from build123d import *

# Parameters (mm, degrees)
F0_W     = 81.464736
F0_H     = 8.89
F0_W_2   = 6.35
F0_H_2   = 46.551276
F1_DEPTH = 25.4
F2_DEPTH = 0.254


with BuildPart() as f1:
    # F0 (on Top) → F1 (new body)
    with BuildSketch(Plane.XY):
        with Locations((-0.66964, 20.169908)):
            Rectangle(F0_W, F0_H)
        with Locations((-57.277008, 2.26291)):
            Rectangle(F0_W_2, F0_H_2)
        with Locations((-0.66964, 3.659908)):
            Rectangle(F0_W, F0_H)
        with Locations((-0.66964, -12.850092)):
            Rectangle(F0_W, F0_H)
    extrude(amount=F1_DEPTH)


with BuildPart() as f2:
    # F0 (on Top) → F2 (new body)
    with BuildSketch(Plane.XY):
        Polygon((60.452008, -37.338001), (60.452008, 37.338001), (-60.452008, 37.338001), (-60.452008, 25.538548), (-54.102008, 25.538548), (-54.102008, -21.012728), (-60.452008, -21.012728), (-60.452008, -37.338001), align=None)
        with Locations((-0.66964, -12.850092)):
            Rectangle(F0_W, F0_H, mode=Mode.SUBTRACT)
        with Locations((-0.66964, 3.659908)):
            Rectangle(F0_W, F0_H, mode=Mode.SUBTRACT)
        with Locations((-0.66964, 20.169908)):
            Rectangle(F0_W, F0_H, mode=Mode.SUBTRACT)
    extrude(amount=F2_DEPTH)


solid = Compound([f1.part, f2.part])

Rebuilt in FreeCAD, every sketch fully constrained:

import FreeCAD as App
import Part
import Sketcher
Q = App.Units.Quantity

doc = App.newDocument("Part")
body = doc.addObject("PartDesign::Body", "Body")
body.AllowCompound = True

sketch1 = body.newObject("Sketcher::SketchObject", "Sketch")
sketch1.AttachmentSupport = (doc.getObject("XY_Plane"), [""])
sketch1.MapMode = "FlatFace"
sketch1.addGeometry(Part.LineSegment(App.Vector(-41, 25, 0), App.Vector(-41, 16, 0)), False)
sketch1.addGeometry(Part.LineSegment(App.Vector(-41, 16, 0), App.Vector(40, 16, 0)), False)
sketch1.addGeometry(Part.LineSegment(App.Vector(40, 16, 0), App.Vector(40, 25, 0)), False)
sketch1.addGeometry(Part.LineSegment(App.Vector(40, 25, 0), App.Vector(-41, 25, 0)), False)
sketch1.addGeometry(Part.LineSegment(App.Vector(-60, 26, 0), App.Vector(-60, -21, 0)), False)
sketch1.addGeometry(Part.LineSegment(App.Vector(-60, -21, 0), App.Vector(-54, -21, 0)), False)
sketch1.addGeometry(Part.LineSegment(App.Vector(-54, -21, 0), App.Vector(-54, 26, 0)), False)
sketch1.addGeometry(Part.LineSegment(App.Vector(-54, 26, 0), App.Vector(-60, 26, 0)), False)
sketch1.addGeometry(Part.LineSegment(App.Vector(-41, 8, 0), App.Vector(-41, -1, 0)), False)
sketch1.addGeometry(Part.LineSegment(App.Vector(-41, -1, 0), App.Vector(40, -1, 0)), False)
sketch1.addGeometry(Part.LineSegment(App.Vector(40, -1, 0), App.Vector(40, 8, 0)), False)
sketch1.addGeometry(Part.LineSegment(App.Vector(40, 8, 0), App.Vector(-41, 8, 0)), False)
sketch1.addGeometry(Part.LineSegment(App.Vector(-41, -8, 0), App.Vector(-41, -17, 0)), False)
sketch1.addGeometry(Part.LineSegment(App.Vector(-41, -17, 0), App.Vector(40, -17, 0)), False)
sketch1.addGeometry(Part.LineSegment(App.Vector(40, -17, 0), App.Vector(40, -8, 0)), False)
sketch1.addGeometry(Part.LineSegment(App.Vector(40, -8, 0), App.Vector(-41, -8, 0)), False)
sketch1.addConstraint(Sketcher.Constraint("Coincident", 0, 2, 1, 1))
sketch1.addConstraint(Sketcher.Constraint("Coincident", 1, 2, 2, 1))
sketch1.addConstraint(Sketcher.Constraint("Coincident", 2, 2, 3, 1))
sketch1.addConstraint(Sketcher.Constraint("Coincident", 3, 2, 0, 1))
sketch1.addConstraint(Sketcher.Constraint("Coincident", 4, 2, 5, 1))
sketch1.addConstraint(Sketcher.Constraint("Coincident", 5, 2, 6, 1))
sketch1.addConstraint(Sketcher.Constraint("Coincident", 6, 2, 7, 1))
sketch1.addConstraint(Sketcher.Constraint("Coincident", 7, 2, 4, 1))
sketch1.addConstraint(Sketcher.Constraint("Coincident", 8, 2, 9, 1))
sketch1.addConstraint(Sketcher.Constraint("Coincident", 9, 2, 10, 1))
sketch1.addConstraint(Sketcher.Constraint("Coincident", 10, 2, 11, 1))
sketch1.addConstraint(Sketcher.Constraint("Coincident", 11, 2, 8, 1))
sketch1.addConstraint(Sketcher.Constraint("Coincident", 12, 2, 13, 1))
sketch1.addConstraint(Sketcher.Constraint("Coincident", 13, 2, 14, 1))
sketch1.addConstraint(Sketcher.Constraint("Coincident", 14, 2, 15, 1))
sketch1.addConstraint(Sketcher.Constraint("Coincident", 15, 2, 12, 1))
sketch1.addConstraint(Sketcher.Constraint("Vertical", 0))
sketch1.addConstraint(Sketcher.Constraint("Horizontal", 1))
sketch1.addConstraint(Sketcher.Constraint("Vertical", 2))
sketch1.addConstraint(Sketcher.Constraint("Horizontal", 3))
sketch1.addConstraint(Sketcher.Constraint("Vertical", 4))
sketch1.addConstraint(Sketcher.Constraint("Horizontal", 5))
sketch1.addConstraint(Sketcher.Constraint("Vertical", 6))
sketch1.addConstraint(Sketcher.Constraint("Horizontal", 7))
sketch1.addConstraint(Sketcher.Constraint("Vertical", 8))
sketch1.addConstraint(Sketcher.Constraint("Horizontal", 9))
sketch1.addConstraint(Sketcher.Constraint("Vertical", 10))
sketch1.addConstraint(Sketcher.Constraint("Horizontal", 11))
sketch1.addConstraint(Sketcher.Constraint("Vertical", 12))
sketch1.addConstraint(Sketcher.Constraint("Horizontal", 13))
sketch1.addConstraint(Sketcher.Constraint("Vertical", 14))
sketch1.addConstraint(Sketcher.Constraint("Horizontal", 15))
sketch1.addConstraint(Sketcher.Constraint("Vertical", 3, 2, 8, 2))
sketch1.addConstraint(Sketcher.Constraint("Vertical", 2, 2, 9, 2))
sketch1.addConstraint(Sketcher.Constraint("Vertical", 11, 2, 12, 2))
sketch1.addConstraint(Sketcher.Constraint("Vertical", 10, 2, 13, 2))
sketch1.addConstraint(Sketcher.Constraint("Equal", 2, 8))
sketch1.addConstraint(Sketcher.Constraint("Equal", 10, 12))
sketch1.addConstraint(Sketcher.Constraint("DistanceY", 8, 2, 3, 2, Q("1 in")))
sketch1.addConstraint(Sketcher.Constraint("DistanceY", 12, 2, 11, 2, Q("1 in")))
sketch1.addConstraint(Sketcher.Constraint("DistanceX", 5, 1, 5, 2, Q("0.25 in")))
sketch1.addConstraint(Sketcher.Constraint("DistanceY", 0, 2, 0, 1, Q("0.35 in")))
sketch1.addConstraint(Sketcher.Constraint("DistanceX", 5, 2, 0, 2, Q("0.5 in")))
sketch1.addConstraint(Sketcher.Constraint("DistanceX", 1, 1, 1, 2, Q("81.464736 mm")))
sketch1.addConstraint(Sketcher.Constraint("DistanceY", 4, 2, 4, 1, Q("46.551276 mm")))
sketch1.addConstraint(Sketcher.Constraint("DistanceX", 0, 2, -1, 1, Q("41.402008 mm")))
sketch1.addConstraint(Sketcher.Constraint("DistanceY", -1, 1, 2, 2, Q("24.614908 mm")))
sketch1.addConstraint(Sketcher.Constraint("DistanceY", 3, 2, 6, 2, Q("0.92364 mm")))
pad1 = body.newObject("PartDesign::Pad", "Pad")
pad1.Profile = sketch1
pad1.Length = Q("1 in")
body2 = doc.addObject("PartDesign::Body", "Body001")

sketch2 = body2.newObject("Sketcher::SketchObject", "Sketch001")
sketch2.AttachmentSupport = (doc.getObject("XY_Plane001"), [""])
sketch2.MapMode = "FlatFace"
sketch2.addGeometry(Part.LineSegment(App.Vector(60, -37, 0), App.Vector(60, 37, 0)), False)
sketch2.addGeometry(Part.LineSegment(App.Vector(60, 37, 0), App.Vector(-60, 37, 0)), False)
sketch2.addGeometry(Part.LineSegment(App.Vector(-60, 37, 0), App.Vector(-60, 26, 0)), False)
sketch2.addGeometry(Part.LineSegment(App.Vector(-60, 26, 0), App.Vector(-54, 26, 0)), False)
sketch2.addGeometry(Part.LineSegment(App.Vector(-54, 26, 0), App.Vector(-54, -21, 0)), False)
sketch2.addGeometry(Part.LineSegment(App.Vector(-54, -21, 0), App.Vector(-60, -21, 0)), False)
sketch2.addGeometry(Part.LineSegment(App.Vector(-60, -21, 0), App.Vector(-60, -37, 0)), False)
sketch2.addGeometry(Part.LineSegment(App.Vector(-60, -37, 0), App.Vector(60, -37, 0)), False)
sketch2.addGeometry(Part.LineSegment(App.Vector(40, -17, 0), App.Vector(-41, -17, 0)), False)
sketch2.addGeometry(Part.LineSegment(App.Vector(-41, -17, 0), App.Vector(-41, -8, 0)), False)
sketch2.addGeometry(Part.LineSegment(App.Vector(-41, -8, 0), App.Vector(40, -8, 0)), False)
sketch2.addGeometry(Part.LineSegment(App.Vector(40, -8, 0), App.Vector(40, -17, 0)), False)
sketch2.addGeometry(Part.LineSegment(App.Vector(40, -1, 0), App.Vector(-41, -1, 0)), False)
sketch2.addGeometry(Part.LineSegment(App.Vector(-41, -1, 0), App.Vector(-41, 8, 0)), False)
sketch2.addGeometry(Part.LineSegment(App.Vector(-41, 8, 0), App.Vector(40, 8, 0)), False)
sketch2.addGeometry(Part.LineSegment(App.Vector(40, 8, 0), App.Vector(40, -1, 0)), False)
sketch2.addGeometry(Part.LineSegment(App.Vector(40, 16, 0), App.Vector(-41, 16, 0)), False)
sketch2.addGeometry(Part.LineSegment(App.Vector(-41, 16, 0), App.Vector(-41, 25, 0)), False)
sketch2.addGeometry(Part.LineSegment(App.Vector(-41, 25, 0), App.Vector(40, 25, 0)), False)
sketch2.addGeometry(Part.LineSegment(App.Vector(40, 25, 0), App.Vector(40, 16, 0)), False)
sketch2.addConstraint(Sketcher.Constraint("Coincident", 0, 2, 1, 1))
sketch2.addConstraint(Sketcher.Constraint("Coincident", 1, 2, 2, 1))
sketch2.addConstraint(Sketcher.Constraint("Coincident", 2, 2, 3, 1))
sketch2.addConstraint(Sketcher.Constraint("Coincident", 3, 2, 4, 1))
sketch2.addConstraint(Sketcher.Constraint("Coincident", 4, 2, 5, 1))
sketch2.addConstraint(Sketcher.Constraint("Coincident", 5, 2, 6, 1))
sketch2.addConstraint(Sketcher.Constraint("Coincident", 6, 2, 7, 1))
sketch2.addConstraint(Sketcher.Constraint("Coincident", 7, 2, 0, 1))
sketch2.addConstraint(Sketcher.Constraint("Coincident", 8, 2, 9, 1))
sketch2.addConstraint(Sketcher.Constraint("Coincident", 9, 2, 10, 1))
sketch2.addConstraint(Sketcher.Constraint("Coincident", 10, 2, 11, 1))
sketch2.addConstraint(Sketcher.Constraint("Coincident", 11, 2, 8, 1))
sketch2.addConstraint(Sketcher.Constraint("Coincident", 12, 2, 13, 1))
sketch2.addConstraint(Sketcher.Constraint("Coincident", 13, 2, 14, 1))
sketch2.addConstraint(Sketcher.Constraint("Coincident", 14, 2, 15, 1))
sketch2.addConstraint(Sketcher.Constraint("Coincident", 15, 2, 12, 1))
sketch2.addConstraint(Sketcher.Constraint("Coincident", 16, 2, 17, 1))
sketch2.addConstraint(Sketcher.Constraint("Coincident", 17, 2, 18, 1))
sketch2.addConstraint(Sketcher.Constraint("Coincident", 18, 2, 19, 1))
sketch2.addConstraint(Sketcher.Constraint("Coincident", 19, 2, 16, 1))
sketch2.addConstraint(Sketcher.Constraint("Vertical", 0))
sketch2.addConstraint(Sketcher.Constraint("Horizontal", 1))
sketch2.addConstraint(Sketcher.Constraint("Vertical", 2))
sketch2.addConstraint(Sketcher.Constraint("Horizontal", 3))
sketch2.addConstraint(Sketcher.Constraint("Vertical", 4))
sketch2.addConstraint(Sketcher.Constraint("Horizontal", 5))
sketch2.addConstraint(Sketcher.Constraint("Vertical", 6))
sketch2.addConstraint(Sketcher.Constraint("Horizontal", 7))
sketch2.addConstraint(Sketcher.Constraint("Horizontal", 8))
sketch2.addConstraint(Sketcher.Constraint("Vertical", 9))
sketch2.addConstraint(Sketcher.Constraint("Horizontal", 10))
sketch2.addConstraint(Sketcher.Constraint("Vertical", 11))
sketch2.addConstraint(Sketcher.Constraint("Horizontal", 12))
sketch2.addConstraint(Sketcher.Constraint("Vertical", 13))
sketch2.addConstraint(Sketcher.Constraint("Horizontal", 14))
sketch2.addConstraint(Sketcher.Constraint("Vertical", 15))
sketch2.addConstraint(Sketcher.Constraint("Horizontal", 16))
sketch2.addConstraint(Sketcher.Constraint("Vertical", 17))
sketch2.addConstraint(Sketcher.Constraint("Horizontal", 18))
sketch2.addConstraint(Sketcher.Constraint("Vertical", 19))
sketch2.addConstraint(Sketcher.Constraint("Symmetric", 0, 2, 6, 2, -1, 1))
sketch2.addConstraint(Sketcher.Constraint("Vertical", 2, 2, 5, 2))
sketch2.addConstraint(Sketcher.Constraint("Vertical", 9, 2, 12, 2))
sketch2.addConstraint(Sketcher.Constraint("Vertical", 11, 2, 14, 2))
sketch2.addConstraint(Sketcher.Constraint("Vertical", 13, 2, 16, 2))
sketch2.addConstraint(Sketcher.Constraint("Vertical", 15, 2, 18, 2))
sketch2.addConstraint(Sketcher.Constraint("Equal", 11, 13))
sketch2.addConstraint(Sketcher.Constraint("Equal", 15, 17))
sketch2.addConstraint(Sketcher.Constraint("DistanceY", 8, 2, 13, 2, Q("1 in")))
sketch2.addConstraint(Sketcher.Constraint("DistanceY", 15, 2, 18, 2, Q("1 in")))
sketch2.addConstraint(Sketcher.Constraint("DistanceX", 3, 1, 3, 2, Q("0.25 in")))
sketch2.addConstraint(Sketcher.Constraint("DistanceY", 0, 1, 0, 2, Q("2.9400001 in")))
sketch2.addConstraint(Sketcher.Constraint("DistanceY", 9, 1, 9, 2, Q("0.35 in")))
sketch2.addConstraint(Sketcher.Constraint("DistanceX", 4, 2, 8, 2, Q("0.5 in")))
sketch2.addConstraint(Sketcher.Constraint("DistanceX", 1, 2, 1, 1, Q("120.904016 mm")))
sketch2.addConstraint(Sketcher.Constraint("DistanceX", 8, 2, 8, 1, Q("81.464736 mm")))
sketch2.addConstraint(Sketcher.Constraint("DistanceY", 2, 2, 2, 1, Q("11.799453 mm")))
sketch2.addConstraint(Sketcher.Constraint("DistanceY", 4, 2, 4, 1, Q("46.551276 mm")))
sketch2.addConstraint(Sketcher.Constraint("DistanceY", -1, 1, 17, 2, Q("24.614908 mm")))
pad2 = body2.newObject("PartDesign::Pad", "Pad001")
pad2.Profile = sketch2
pad2.Length = Q("0.01 in")

doc.recompute()
